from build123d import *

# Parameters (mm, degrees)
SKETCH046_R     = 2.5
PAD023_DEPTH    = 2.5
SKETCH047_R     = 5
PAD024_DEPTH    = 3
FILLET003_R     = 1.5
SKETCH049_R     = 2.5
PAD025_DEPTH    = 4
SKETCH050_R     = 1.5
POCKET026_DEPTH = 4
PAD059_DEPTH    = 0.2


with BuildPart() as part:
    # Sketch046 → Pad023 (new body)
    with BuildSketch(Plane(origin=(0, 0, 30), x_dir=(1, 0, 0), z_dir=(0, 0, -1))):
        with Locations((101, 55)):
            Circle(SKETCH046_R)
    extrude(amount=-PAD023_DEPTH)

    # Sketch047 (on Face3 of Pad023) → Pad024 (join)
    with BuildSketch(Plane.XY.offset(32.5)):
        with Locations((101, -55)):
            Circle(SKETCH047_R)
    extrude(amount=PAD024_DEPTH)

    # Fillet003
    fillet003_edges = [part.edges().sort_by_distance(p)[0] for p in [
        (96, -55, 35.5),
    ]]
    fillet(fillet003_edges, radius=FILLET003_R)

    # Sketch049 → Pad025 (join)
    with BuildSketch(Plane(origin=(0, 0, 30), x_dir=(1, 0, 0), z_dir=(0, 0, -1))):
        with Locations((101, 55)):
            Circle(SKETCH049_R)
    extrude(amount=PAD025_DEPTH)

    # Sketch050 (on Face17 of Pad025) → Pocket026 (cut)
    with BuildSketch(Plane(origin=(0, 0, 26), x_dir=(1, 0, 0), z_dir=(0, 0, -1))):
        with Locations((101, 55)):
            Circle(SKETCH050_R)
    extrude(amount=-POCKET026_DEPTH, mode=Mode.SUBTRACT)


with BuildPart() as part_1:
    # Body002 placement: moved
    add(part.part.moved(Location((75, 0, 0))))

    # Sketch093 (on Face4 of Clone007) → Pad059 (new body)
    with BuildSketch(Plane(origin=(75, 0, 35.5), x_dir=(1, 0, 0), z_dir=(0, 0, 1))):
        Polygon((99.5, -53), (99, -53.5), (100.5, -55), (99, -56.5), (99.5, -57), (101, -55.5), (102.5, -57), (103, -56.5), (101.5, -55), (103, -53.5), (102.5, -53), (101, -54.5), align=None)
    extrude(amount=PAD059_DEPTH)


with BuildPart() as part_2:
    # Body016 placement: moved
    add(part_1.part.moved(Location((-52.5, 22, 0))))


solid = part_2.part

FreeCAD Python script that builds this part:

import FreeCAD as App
import Part
import Sketcher

V = App.Vector


def edges_at(feature, points):
    """Names of the edges that pass closest to the given points."""
    edges = feature.Shape.Edges
    near = lambda p: min(range(len(edges)), key=lambda i: edges[i].distToShape(Part.Vertex(*p))[0])
    return sorted({f"Edge{near(p) + 1}" for p in points})


def add_polygon(sketch, points):
    """Adds a closed chain of lines whose ends are joined by coincident constraints."""
    first, n = sketch.GeometryCount, len(points)
    for a, b in zip(points, points[1:] + points[:1]):
        sketch.addGeometry(Part.LineSegment(App.Vector(*a, 0), App.Vector(*b, 0)), False)
    for i in range(n):
        sketch.addConstraint(Sketcher.Constraint("Coincident", first + i, 2, first + (i + 1) % n, 1))

doc = App.newDocument("Part")
body = doc.addObject("PartDesign::Body", "Body")

sketch1 = body.newObject("Sketcher::SketchObject", "Sketch")
sketch1.AttachmentSupport = (doc.getObject("XY_Plane"), [""])
sketch1.MapMode = "FlatFace"
sketch1.AttachmentOffset = App.Placement(V(0, 0, 30), App.Rotation())
sketch1.addGeometry(Part.Circle(V(101, -55, 0), V(0, 0, 1), 2.5), False)
sketch1.addConstraint([
    Sketcher.Constraint("Diameter", 0, 5.0),
    Sketcher.Constraint("DistanceX", -1, 1, 0, 3, 101.0),
    Sketcher.Constraint("DistanceY", 0, 3, -1, 1, 55.0),
])
pad1 = body.newObject("PartDesign::Pad", "Pad")
pad1.Profile = sketch1
pad1.Length = 2.5

sketch2 = body.newObject("Sketcher::SketchObject", "Sketch001")
sketch2.AttachmentSupport = (doc.getObject("XY_Plane"), [""])
sketch2.MapMode = "FlatFace"
sketch2.AttachmentOffset = App.Placement(V(0, 0, 32.5), App.Rotation())
sketch2.addGeometry(Part.Circle(V(101, -55, 0), V(0, 0, 1), 5), False)
sketch2.addConstraint([
    Sketcher.Constraint("Diameter", 0, 10.0),
    Sketcher.Constraint("DistanceX", -1, 1, 0, 3, 101.0),
    Sketcher.Constraint("DistanceY", 0, 3, -1, 1, 55.0),
])
pad2 = body.newObject("PartDesign::Pad", "Pad001")
pad2.Profile = sketch2
pad2.Length = 3
doc.recompute()

fillet = body.newObject("PartDesign::Fillet", "Fillet")
fillet.Base = (pad2, edges_at(pad2, [(96, -55, 35.5)]))
fillet.Radius = 1.5

sketch3 = body.newObject("Sketcher::SketchObject", "Sketch002")
sketch3.AttachmentSupport = (doc.getObject("XY_Plane"), [""])
sketch3.MapMode = "FlatFace"
sketch3.AttachmentOffset = App.Placement(V(0, 0, 30), App.Rotation())
sketch3.addGeometry(Part.Circle(V(101, -55, 0), V(0, 0, 1), 2.5), False)
sketch3.addConstraint([
    Sketcher.Constraint("Diameter", 0, 5.0),
    Sketcher.Constraint("DistanceX", -1, 1, 0, 3, 101.0),
    Sketcher.Constraint("DistanceY", 0, 3, -1, 1, 55.0),
])
pad3 = body.newObject("PartDesign::Pad", "Pad002")
pad3.Profile = sketch3
pad3.Length = 4
pad3.Reversed = True

sketch4 = body.newObject("Sketcher::SketchObject", "Sketch003")
sketch4.AttachmentSupport = (doc.getObject("XY_Plane"), [""])
sketch4.MapMode = "FlatFace"
sketch4.AttachmentOffset = App.Placement(V(0, 0, 26), App.Rotation())
sketch4.addGeometry(Part.Circle(V(101, -55, 0), V(0, 0, 1), 1.5), False)
sketch4.addConstraint([
    Sketcher.Constraint("Diameter", 0, 3.0),
    Sketcher.Constraint("DistanceX", -1, 1, 0, 3, 101.0),
    Sketcher.Constraint("DistanceY", 0, 3, -1, 1, 55.0),
])
pocket1 = body.newObject("PartDesign::Pocket", "Pocket")
pocket1.Profile = sketch4
pocket1.Length = 4
pocket1.Reversed = True
body2 = doc.addObject("PartDesign::Body", "Body001")
doc.recompute()

body.Placement = App.Placement(V(75, 0, 0), App.Rotation(V(0, 0, 1), 0))
boolean = body2.newObject("PartDesign::Boolean", "Boolean")
boolean.Type = "Fuse"
boolean.addObjects([body])

sketch5 = body2.newObject("Sketcher::SketchObject", "Sketch004")
sketch5.AttachmentSupport = (doc.getObject("XY_Plane001"), [""])
sketch5.MapMode = "FlatFace"
sketch5.AttachmentOffset = App.Placement(V(0, 0, 35.5), App.Rotation())
add_polygon(sketch5, [(174.5, -53), (174, -53.5), (175.5, -55), (174, -56.5), (174.5, -57), (176, -55.5), (177.5, -57), (178, -56.5), (176.5, -55), (178, -53.5), (177.5, -53), (176, -54.5)])
sketch5.addConstraint([
    Sketcher.Constraint("Perpendicular", 0, 1),
    Sketcher.Constraint("Perpendicular", 1, 2),
    Sketcher.Constraint("Perpendicular", 2, 3),
    Sketcher.Constraint("Perpendicular", 3, 4),
    Sketcher.Constraint("Perpendicular", 4, 5),
    Sketcher.Constraint("Perpendicular", 5, 6),
    Sketcher.Constraint("Perpendicular", 6, 7),
    Sketcher.Constraint("Perpendicular", 7, 8),
    Sketcher.Constraint("Perpendicular", 8, 9),
    Sketcher.Constraint("Perpendicular", 9, 10),
    Sketcher.Constraint("Perpendicular", 10, 11),
    Sketcher.Constraint("Horizontal", 3, 2, 5, 2),
    Sketcher.Constraint("Horizontal", 2, 2, 6, 2),
    Sketcher.Constraint("Horizontal", 1, 2, 7, 2),
    Sketcher.Constraint("Horizontal", 0, 2, 8, 2),
    Sketcher.Constraint("Horizontal", 9, 2, 11, 2),
    Sketcher.Constraint("Vertical", 0, 2, 2, 2),
    Sketcher.Constraint("Vertical", 6, 2, 8, 2),
    Sketcher.Constraint("Vertical", 5, 2, 9, 2),
    Sketcher.Constraint("Equal", 2, 4),
    Sketcher.Constraint("DistanceX", -1, 1, 0, 2, 174.0),
    Sketcher.Constraint("DistanceY", 1, 2, -1, 1, 55.0),
    Sketcher.Constraint("DistanceY", 3, 2, -1, 1, 57.0),
    Sketcher.Constraint("DistanceY", 2, 2, 0, 2, 3.0),
])
pad4 = body2.newObject("PartDesign::Pad", "Pad003")
pad4.Profile = sketch5
pad4.Length = 0.2
body3 = doc.addObject("PartDesign::Body", "Body002")
doc.recompute()

body2.Placement = App.Placement(V(-52.5, 22, 0), App.Rotation(V(0, 0, 1), 0))
boolean2 = body3.newObject("PartDesign::Boolean", "Boolean001")
boolean2.Type = "Fuse"
boolean2.addObjects([body2])

doc.recompute()
